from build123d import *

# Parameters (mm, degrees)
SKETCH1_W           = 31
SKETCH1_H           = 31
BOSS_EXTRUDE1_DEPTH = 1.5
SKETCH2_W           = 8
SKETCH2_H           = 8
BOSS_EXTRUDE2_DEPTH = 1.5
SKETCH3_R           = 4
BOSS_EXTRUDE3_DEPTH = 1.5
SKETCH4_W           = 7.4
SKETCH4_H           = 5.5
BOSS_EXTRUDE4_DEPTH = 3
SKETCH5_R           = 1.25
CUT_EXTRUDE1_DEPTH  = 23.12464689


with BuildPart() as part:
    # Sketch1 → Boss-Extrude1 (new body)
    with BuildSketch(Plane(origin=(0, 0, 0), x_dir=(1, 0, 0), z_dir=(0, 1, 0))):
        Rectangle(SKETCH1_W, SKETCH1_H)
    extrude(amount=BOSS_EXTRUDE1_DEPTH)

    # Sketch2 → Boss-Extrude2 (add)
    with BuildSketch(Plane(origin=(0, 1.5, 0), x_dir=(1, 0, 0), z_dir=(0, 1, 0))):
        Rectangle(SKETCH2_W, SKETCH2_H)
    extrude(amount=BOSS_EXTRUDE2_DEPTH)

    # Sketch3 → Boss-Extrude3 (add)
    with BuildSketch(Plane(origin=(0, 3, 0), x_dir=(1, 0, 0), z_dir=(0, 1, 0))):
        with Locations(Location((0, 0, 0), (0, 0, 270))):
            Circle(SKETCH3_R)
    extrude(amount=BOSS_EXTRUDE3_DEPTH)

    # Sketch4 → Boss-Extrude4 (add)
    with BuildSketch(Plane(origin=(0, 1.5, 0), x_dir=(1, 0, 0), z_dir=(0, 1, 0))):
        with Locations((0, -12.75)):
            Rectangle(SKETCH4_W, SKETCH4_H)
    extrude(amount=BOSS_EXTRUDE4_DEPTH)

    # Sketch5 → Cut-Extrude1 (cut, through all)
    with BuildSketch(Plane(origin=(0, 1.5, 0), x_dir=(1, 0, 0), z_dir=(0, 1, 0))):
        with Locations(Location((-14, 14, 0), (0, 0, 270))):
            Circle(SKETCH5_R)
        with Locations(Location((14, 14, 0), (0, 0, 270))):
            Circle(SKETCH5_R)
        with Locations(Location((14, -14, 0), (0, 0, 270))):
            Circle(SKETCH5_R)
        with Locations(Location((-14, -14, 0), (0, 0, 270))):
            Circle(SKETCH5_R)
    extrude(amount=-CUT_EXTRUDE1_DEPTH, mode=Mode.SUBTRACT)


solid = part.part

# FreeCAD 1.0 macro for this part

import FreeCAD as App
import Part
import Sketcher


def add_polygon(sketch, points):
    """Adds a closed chain of lines whose ends are joined by coincident constraints."""
    first, n = sketch.GeometryCount, len(points)
    for a, b in zip(points, points[1:] + points[:1]):
        sketch.addGeometry(Part.LineSegment(App.Vector(*a, 0), App.Vector(*b, 0)), False)
    for i in range(n):
        sketch.addConstraint(Sketcher.Constraint("Coincident", first + i, 2, first + (i + 1) % n, 1))

doc = App.newDocument("Part")
body = doc.addObject("PartDesign::Body", "Body")

sketch1 = body.newObject("Sketcher::SketchObject", "Sketch")
sketch1.AttachmentSupport = (doc.getObject("XZ_Plane"), [""])
sketch1.MapMode = "FlatFace"
add_polygon(sketch1, [(-16, -16), (-16, 16), (16, 16), (16, -16)])
sketch1.addConstraint(Sketcher.Constraint("Vertical", 0))
sketch1.addConstraint(Sketcher.Constraint("Horizontal", 1))
sketch1.addConstraint(Sketcher.Constraint("Vertical", 2))
sketch1.addConstraint(Sketcher.Constraint("Horizontal", 3))
sketch1.addConstraint(Sketcher.Constraint("Symmetric", 0, 2, 2, 2, -1, 1))
sketch1.addConstraint(Sketcher.Constraint("Equal", 3, 0))
sketch1.addConstraint(Sketcher.Constraint("DistanceX", 1, 1, 1, 2, 31.0))
pad1 = body.newObject("PartDesign::Pad", "Pad")
pad1.Profile = sketch1
pad1.Length = 1.5
pad1.Reversed = True

sketch2 = body.newObject("Sketcher::SketchObject", "Sketch001")
sketch2.AttachmentSupport = (doc.getObject("XZ_Plane"), [""])
sketch2.MapMode = "FlatFace"
sketch2.AttachmentOffset = App.Placement(App.Vector(0, 0, -1.5), App.Rotation())
add_polygon(sketch2, [(-4, -4), (-4, 4), (4, 4), (4, -4)])
sketch2.addConstraint(Sketcher.Constraint("Vertical", 0))
sketch2.addConstraint(Sketcher.Constraint("Horizontal", 1))
sketch2.addConstraint(Sketcher.Constraint("Vertical", 2))
sketch2.addConstraint(Sketcher.Constraint("Horizontal", 3))
sketch2.addConstraint(Sketcher.Constraint("Symmetric", 0, 2, 2, 2, -1, 1))
sketch2.addConstraint(Sketcher.Constraint("Equal", 3, 0))
sketch2.addConstraint(Sketcher.Constraint("DistanceX", 1, 1, 1, 2, 8.0))
pad2 = body.newObject("PartDesign::Pad", "Pad001")
pad2.Profile = sketch2
pad2.Length = 1.5
pad2.Reversed = True

sketch3 = body.newObject("Sketcher::SketchObject", "Sketch002")
sketch3.AttachmentSupport = (doc.getObject("XZ_Plane"), [""])
sketch3.MapMode = "FlatFace"
sketch3.AttachmentOffset = App.Placement(App.Vector(0, 0, -3), App.Rotation())
sketch3.addGeometry(Part.Circle(App.Vector(0, 0, 0), App.Vector(0, 0, 1), 4), False)
sketch3.addConstraint(Sketcher.Constraint("Coincident", 0, 3, -1, 1))
sketch3.addConstraint(Sketcher.Constraint("Diameter", 0, 8.0))
pad3 = body.newObject("PartDesign::Pad", "Pad002")
pad3.Profile = sketch3
pad3.Length = 1.5
pad3.Reversed = True

sketch4 = body.newObject("Sketcher::SketchObject", "Sketch003")
sketch4.AttachmentSupport = (doc.getObject("XZ_Plane"), [""])
sketch4.MapMode = "FlatFace"
sketch4.AttachmentOffset = App.Placement(App.Vector(0, 0, -1.5), App.Rotation())
add_polygon(sketch4, [(-4, 10), (-4, 16), (4, 16), (4, 10)])
sketch4.addConstraint(Sketcher.Constraint("Vertical", 0))
sketch4.addConstraint(Sketcher.Constraint("Horizontal", 1))
sketch4.addConstraint(Sketcher.Constraint("Vertical", 2))
sketch4.addConstraint(Sketcher.Constraint("Horizontal", 3))
sketch4.addConstraint(Sketcher.Constraint("DistanceX", 1, 1, 1, 2, 7.4))
sketch4.addConstraint(Sketcher.Constraint("DistanceY", 0, 1, 0, 2, 5.5))
sketch4.addConstraint(Sketcher.Constraint("DistanceY", -1, 1, 2, 2, 10.0))
sketch4.addConstraint(Sketcher.Constraint("DistanceX", 0, 2, -1, 1, 3.7))
pad4 = body.newObject("PartDesign::Pad", "Pad003")
pad4.Profile = sketch4
pad4.Length = 3
pad4.Reversed = True

sketch5 = body.newObject("Sketcher::SketchObject", "Sketch004")
sketch5.AttachmentSupport = (doc.getObject("XZ_Plane"), [""])
sketch5.MapMode = "FlatFace"
sketch5.AttachmentOffset = App.Placement(App.Vector(0, 0, -1.5), App.Rotation())
sketch5.addGeometry(Part.Circle(App.Vector(-14, -14, 0), App.Vector(0, 0, 1), 1.2), False)
sketch5.addGeometry(Part.Circle(App.Vector(14, -14, 0), App.Vector(0, 0, 1), 1.2), False)
sketch5.addGeometry(Part.Circle(App.Vector(14, 14, 0), App.Vector(0, 0, 1), 1.2), False)
sketch5.addGeometry(Part.Circle(App.Vector(-14, 14, 0), App.Vector(0, 0, 1), 1.2), False)
sketch5.addConstraint(Sketcher.Constraint("Equal", 0, 1))
sketch5.addConstraint(Sketcher.Constraint("Equal", 1, 2))
sketch5.addConstraint(Sketcher.Constraint("Equal", 2, 3))
sketch5.addConstraint(Sketcher.Constraint("Symmetric", 0, 3, 2, 3, -1, 1))
sketch5.addConstraint(Sketcher.Constraint("Symmetric", 1, 3, 3, 3, -1, 1))
sketch5.addConstraint(Sketcher.Constraint("Symmetric", 0, 3, 1, 3, -2))
sketch5.addConstraint(Sketcher.Constraint("Diameter", 0, 2.5))
sketch5.addConstraint(Sketcher.Constraint("DistanceX", 0, 3, -1, 1, 14.0))
sketch5.addConstraint(Sketcher.Constraint("DistanceY", 0, 3, -1, 1, 14.0))
pocket1 = body.newObject("PartDesign::Pocket", "Pocket")
pocket1.Profile = sketch5
pocket1.Type = "ThroughAll"
pocket1.Reversed = True

doc.recompute()
